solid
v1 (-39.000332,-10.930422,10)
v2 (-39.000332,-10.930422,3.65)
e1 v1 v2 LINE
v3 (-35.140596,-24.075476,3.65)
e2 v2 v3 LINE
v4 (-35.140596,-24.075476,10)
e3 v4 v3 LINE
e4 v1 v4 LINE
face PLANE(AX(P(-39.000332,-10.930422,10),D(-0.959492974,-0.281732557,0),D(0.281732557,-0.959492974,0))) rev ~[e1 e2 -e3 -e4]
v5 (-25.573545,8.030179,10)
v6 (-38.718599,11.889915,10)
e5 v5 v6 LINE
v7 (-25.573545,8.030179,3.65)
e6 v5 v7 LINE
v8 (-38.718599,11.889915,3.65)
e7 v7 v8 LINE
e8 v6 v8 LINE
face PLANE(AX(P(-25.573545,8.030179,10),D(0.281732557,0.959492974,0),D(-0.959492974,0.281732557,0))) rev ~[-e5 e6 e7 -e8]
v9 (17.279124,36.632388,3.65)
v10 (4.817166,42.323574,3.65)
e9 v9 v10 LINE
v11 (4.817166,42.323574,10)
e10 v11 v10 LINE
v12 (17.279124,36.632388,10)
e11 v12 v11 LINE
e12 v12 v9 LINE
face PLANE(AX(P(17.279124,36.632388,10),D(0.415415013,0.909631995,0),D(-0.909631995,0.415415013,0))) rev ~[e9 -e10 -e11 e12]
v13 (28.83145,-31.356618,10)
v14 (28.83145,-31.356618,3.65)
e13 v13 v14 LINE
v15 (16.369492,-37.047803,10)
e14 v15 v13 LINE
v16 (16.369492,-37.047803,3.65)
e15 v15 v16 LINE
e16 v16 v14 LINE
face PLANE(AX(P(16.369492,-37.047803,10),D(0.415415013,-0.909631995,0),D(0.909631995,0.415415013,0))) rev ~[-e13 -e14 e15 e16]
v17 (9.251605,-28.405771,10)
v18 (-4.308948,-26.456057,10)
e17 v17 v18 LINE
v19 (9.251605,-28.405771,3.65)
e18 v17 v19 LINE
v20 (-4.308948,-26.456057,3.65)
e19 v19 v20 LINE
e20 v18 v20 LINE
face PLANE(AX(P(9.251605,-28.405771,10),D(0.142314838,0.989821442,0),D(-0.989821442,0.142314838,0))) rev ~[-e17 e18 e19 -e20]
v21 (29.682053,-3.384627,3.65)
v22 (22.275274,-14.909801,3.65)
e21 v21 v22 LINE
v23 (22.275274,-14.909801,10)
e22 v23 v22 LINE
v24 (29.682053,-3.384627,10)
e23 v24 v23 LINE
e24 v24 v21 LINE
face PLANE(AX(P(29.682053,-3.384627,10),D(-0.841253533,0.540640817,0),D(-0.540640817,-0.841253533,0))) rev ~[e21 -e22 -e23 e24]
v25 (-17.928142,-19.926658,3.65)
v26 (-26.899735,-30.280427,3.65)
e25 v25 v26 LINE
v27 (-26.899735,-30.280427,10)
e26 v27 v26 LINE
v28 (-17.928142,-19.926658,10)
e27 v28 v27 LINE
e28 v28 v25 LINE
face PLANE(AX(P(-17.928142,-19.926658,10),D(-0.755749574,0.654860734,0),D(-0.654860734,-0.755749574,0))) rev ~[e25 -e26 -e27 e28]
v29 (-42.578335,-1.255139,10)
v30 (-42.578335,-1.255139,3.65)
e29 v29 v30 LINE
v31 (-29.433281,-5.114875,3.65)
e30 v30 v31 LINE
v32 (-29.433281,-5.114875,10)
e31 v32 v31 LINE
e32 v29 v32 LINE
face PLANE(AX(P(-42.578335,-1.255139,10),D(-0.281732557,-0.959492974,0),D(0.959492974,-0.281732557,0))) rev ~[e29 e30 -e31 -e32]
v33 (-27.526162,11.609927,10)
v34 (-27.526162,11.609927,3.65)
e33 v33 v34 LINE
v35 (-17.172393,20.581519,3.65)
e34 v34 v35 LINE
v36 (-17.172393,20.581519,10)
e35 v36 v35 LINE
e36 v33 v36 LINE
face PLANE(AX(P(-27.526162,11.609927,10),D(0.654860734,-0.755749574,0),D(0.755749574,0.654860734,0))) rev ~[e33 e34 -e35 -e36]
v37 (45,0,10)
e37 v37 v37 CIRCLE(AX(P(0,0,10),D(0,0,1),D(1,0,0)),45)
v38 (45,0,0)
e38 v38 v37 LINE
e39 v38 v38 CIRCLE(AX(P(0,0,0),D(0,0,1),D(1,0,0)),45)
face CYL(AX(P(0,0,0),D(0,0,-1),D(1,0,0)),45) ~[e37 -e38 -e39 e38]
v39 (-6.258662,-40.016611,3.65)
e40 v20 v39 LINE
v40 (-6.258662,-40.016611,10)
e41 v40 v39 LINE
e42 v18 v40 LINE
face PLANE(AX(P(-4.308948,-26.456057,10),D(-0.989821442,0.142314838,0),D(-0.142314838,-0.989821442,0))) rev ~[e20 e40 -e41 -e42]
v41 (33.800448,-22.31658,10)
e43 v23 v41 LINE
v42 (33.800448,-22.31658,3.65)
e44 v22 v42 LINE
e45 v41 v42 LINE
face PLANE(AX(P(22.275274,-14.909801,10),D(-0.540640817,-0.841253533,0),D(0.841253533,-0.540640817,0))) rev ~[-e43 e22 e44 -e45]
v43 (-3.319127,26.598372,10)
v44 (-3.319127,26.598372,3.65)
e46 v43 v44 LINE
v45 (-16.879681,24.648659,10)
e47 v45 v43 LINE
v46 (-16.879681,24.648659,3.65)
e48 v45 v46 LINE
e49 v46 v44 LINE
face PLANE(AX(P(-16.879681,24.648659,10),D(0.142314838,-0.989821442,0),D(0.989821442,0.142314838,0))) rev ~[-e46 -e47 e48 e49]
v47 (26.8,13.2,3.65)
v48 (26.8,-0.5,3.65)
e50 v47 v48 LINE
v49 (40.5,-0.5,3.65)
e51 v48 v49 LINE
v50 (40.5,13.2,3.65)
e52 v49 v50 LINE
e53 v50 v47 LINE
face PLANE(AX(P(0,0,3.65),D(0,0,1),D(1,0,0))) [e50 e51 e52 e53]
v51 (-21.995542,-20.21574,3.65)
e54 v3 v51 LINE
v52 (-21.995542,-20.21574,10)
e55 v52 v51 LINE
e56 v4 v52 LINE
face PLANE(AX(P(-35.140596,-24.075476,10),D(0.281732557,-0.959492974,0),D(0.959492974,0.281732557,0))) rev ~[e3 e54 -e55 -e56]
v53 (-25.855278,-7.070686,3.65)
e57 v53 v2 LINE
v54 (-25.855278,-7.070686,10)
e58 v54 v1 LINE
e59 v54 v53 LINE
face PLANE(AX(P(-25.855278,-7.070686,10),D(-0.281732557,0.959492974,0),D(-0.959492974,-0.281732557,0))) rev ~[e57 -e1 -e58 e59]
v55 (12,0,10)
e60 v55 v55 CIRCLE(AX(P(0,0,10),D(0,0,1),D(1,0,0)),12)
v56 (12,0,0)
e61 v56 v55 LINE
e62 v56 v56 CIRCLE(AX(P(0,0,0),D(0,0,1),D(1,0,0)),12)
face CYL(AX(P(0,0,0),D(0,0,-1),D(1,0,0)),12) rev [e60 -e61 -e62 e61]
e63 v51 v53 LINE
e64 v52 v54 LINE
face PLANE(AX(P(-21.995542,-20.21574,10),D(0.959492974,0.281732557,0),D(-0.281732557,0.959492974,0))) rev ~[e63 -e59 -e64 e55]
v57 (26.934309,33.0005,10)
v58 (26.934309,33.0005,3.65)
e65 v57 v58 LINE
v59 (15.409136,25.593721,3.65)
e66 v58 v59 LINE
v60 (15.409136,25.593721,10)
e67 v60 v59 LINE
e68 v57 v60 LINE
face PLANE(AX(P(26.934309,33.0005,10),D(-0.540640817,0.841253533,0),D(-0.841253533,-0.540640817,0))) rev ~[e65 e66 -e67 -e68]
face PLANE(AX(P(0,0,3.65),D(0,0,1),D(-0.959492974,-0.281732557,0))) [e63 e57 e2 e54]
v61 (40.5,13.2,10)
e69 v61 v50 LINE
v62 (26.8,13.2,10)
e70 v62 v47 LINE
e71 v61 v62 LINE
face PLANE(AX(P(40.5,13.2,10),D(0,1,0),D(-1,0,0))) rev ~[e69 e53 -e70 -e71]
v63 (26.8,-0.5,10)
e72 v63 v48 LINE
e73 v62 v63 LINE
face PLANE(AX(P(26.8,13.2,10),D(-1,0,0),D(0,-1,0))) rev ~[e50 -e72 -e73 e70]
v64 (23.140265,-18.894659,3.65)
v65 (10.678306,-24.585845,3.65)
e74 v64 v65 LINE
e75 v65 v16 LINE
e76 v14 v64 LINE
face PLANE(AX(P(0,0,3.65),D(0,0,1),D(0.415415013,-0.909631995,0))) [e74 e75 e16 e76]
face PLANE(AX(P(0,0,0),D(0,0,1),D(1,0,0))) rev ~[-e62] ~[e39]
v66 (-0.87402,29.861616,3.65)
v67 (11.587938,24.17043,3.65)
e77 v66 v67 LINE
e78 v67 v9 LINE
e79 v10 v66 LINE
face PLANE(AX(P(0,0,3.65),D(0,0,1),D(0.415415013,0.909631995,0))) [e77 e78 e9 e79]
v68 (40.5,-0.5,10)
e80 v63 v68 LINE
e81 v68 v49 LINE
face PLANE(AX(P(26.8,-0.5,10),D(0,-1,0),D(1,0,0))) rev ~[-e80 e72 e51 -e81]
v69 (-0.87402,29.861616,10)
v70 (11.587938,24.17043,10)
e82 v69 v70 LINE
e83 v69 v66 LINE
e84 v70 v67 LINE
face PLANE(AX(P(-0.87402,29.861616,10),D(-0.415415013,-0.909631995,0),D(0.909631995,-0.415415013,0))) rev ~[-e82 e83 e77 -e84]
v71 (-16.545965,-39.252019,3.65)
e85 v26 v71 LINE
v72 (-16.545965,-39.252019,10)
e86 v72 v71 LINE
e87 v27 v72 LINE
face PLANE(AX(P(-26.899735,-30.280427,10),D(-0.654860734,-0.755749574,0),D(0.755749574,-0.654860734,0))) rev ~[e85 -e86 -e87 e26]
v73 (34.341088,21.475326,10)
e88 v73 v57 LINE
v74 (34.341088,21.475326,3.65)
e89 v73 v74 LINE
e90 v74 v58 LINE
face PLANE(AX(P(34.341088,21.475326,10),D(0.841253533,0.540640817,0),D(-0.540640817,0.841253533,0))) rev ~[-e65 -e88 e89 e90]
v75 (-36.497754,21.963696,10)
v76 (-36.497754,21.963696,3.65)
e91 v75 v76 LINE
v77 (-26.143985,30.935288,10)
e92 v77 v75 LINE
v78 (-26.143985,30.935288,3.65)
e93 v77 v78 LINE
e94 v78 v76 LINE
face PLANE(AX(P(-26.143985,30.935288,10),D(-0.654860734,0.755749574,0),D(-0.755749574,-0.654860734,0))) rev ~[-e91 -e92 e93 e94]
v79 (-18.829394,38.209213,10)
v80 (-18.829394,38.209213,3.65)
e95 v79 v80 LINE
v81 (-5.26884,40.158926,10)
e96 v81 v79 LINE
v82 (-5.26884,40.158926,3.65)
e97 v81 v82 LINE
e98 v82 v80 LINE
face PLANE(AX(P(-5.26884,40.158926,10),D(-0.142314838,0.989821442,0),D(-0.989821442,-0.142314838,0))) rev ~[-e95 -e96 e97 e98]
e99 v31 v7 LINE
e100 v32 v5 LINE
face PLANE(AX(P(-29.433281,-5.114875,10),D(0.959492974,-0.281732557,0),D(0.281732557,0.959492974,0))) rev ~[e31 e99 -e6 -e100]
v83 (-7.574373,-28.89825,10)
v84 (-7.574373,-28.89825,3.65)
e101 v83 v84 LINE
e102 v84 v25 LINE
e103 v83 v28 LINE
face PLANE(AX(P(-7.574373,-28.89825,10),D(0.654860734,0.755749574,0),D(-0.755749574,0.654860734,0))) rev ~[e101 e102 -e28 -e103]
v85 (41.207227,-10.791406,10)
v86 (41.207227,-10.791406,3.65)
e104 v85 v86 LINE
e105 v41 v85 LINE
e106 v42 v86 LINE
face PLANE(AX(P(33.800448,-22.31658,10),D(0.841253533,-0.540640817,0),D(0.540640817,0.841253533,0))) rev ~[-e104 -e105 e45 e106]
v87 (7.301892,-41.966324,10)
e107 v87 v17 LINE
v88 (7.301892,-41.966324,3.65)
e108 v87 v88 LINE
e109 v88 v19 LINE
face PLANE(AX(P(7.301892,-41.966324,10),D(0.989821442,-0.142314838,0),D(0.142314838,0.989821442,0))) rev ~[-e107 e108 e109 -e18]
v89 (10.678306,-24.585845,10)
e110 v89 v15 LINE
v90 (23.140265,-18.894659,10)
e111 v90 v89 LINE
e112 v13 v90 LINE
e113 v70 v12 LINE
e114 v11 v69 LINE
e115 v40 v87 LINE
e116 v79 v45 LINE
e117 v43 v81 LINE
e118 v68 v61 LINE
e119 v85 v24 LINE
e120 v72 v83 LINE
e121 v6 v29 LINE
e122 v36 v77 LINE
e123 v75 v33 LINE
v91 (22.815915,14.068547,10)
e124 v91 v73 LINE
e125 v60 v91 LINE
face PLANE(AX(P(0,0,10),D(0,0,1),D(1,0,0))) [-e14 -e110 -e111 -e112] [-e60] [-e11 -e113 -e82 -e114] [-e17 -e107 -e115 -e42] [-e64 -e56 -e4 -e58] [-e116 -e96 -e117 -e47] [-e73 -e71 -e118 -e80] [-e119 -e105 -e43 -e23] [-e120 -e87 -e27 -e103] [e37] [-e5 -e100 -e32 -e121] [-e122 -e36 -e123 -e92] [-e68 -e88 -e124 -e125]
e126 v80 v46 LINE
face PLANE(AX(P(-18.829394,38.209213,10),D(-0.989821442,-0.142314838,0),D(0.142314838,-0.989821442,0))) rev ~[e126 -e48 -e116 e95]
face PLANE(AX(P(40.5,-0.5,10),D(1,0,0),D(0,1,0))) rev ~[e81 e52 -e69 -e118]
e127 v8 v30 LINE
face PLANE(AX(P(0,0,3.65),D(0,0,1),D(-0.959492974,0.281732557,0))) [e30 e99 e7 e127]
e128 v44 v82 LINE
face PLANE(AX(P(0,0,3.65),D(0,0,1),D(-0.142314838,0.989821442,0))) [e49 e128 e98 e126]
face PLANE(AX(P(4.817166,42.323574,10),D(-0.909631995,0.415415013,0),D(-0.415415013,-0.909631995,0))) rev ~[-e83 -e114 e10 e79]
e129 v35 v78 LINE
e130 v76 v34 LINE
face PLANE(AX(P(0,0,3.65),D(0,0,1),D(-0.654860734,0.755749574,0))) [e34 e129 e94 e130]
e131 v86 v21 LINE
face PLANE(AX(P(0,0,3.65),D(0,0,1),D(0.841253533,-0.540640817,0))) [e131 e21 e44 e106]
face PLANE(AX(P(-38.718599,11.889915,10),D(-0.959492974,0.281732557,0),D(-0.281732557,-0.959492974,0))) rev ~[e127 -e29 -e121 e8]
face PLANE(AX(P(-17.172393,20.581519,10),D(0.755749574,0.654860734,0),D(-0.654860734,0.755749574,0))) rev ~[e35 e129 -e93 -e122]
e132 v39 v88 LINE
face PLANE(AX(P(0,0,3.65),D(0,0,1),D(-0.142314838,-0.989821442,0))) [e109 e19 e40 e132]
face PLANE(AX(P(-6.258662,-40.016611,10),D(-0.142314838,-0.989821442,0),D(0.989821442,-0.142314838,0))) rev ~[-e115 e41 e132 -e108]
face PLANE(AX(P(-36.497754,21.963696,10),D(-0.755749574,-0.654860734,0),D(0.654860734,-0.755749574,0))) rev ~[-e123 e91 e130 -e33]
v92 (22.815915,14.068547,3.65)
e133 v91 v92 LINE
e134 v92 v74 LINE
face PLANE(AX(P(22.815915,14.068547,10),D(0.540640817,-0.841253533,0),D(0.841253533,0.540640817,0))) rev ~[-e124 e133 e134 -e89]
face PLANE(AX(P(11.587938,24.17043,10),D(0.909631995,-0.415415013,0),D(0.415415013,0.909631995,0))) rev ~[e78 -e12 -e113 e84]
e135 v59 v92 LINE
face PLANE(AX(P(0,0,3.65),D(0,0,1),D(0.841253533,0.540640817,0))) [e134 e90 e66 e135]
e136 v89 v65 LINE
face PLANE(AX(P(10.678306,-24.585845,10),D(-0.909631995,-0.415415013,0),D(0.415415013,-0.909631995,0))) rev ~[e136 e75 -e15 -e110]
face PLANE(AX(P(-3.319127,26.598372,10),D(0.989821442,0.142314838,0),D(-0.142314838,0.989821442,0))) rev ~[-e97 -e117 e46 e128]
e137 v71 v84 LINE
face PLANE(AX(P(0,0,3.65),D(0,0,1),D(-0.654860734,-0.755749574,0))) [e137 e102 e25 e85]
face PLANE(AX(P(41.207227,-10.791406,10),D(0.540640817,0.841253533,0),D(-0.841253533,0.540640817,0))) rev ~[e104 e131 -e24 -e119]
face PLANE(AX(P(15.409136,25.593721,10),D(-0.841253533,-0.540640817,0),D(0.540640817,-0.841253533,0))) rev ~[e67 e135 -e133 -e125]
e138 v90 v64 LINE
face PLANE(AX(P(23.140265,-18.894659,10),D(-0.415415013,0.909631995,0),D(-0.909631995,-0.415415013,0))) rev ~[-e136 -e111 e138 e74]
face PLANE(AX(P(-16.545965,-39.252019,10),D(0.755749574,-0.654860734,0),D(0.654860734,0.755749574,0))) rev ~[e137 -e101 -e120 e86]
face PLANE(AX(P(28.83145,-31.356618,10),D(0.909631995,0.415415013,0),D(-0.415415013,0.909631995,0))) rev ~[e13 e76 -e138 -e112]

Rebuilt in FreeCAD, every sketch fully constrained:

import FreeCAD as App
import Part
import Sketcher

V = App.Vector


def add_polygon(sketch, points):
    """Adds a closed chain of lines whose ends are joined by coincident constraints."""
    first, n = sketch.GeometryCount, len(points)
    for a, b in zip(points, points[1:] + points[:1]):
        sketch.addGeometry(Part.LineSegment(App.Vector(*a, 0), App.Vector(*b, 0)), False)
    for i in range(n):
        sketch.addConstraint(Sketcher.Constraint("Coincident", first + i, 2, first + (i + 1) % n, 1))

doc = App.newDocument("Part")
params = doc.addObject("Spreadsheet::Sheet", "Params")
for row, (alias, value) in enumerate([
    ("sketch1_diameter", "90 mm"),
    ("sketch1_diameter2", "24 mm"),
    ("pad1_length", "10 mm"),
    ("sketch2_width", "13.7 mm"),
    ("pocket1_length", "6.35 mm"),
], start=1):
    params.set(f"A{row}", alias)
    params.set(f"B{row}", "=" + value)
    params.setAlias(f"B{row}", alias)

body = doc.addObject("PartDesign::Body", "Body")

sketch1 = doc.addObject("Sketcher::SketchObject", "Sketch")
body.addObject(sketch1)
sketch1.AttachmentSupport = (doc.XY_Plane, [""])
sketch1.MapMode = "FlatFace"
sketch1.addGeometry([
    Part.Circle(V(0, 0, 0), V(0, 0, 1), 45),
    Part.Circle(V(0, 0, 0), V(0, 0, 1), 12),
], False)
sketch1.addConstraint([
    Sketcher.Constraint("Coincident", 0, 3, -1, 1),
    Sketcher.Constraint("Coincident", 1, 3, -1, 1),
    Sketcher.Constraint("Diameter", 0, 90.0),
    Sketcher.Constraint("Diameter", 1, 24.0),
])
sketch1.setExpression("Constraints[2]", "Params.sketch1_diameter")
sketch1.setExpression("Constraints[3]", "Params.sketch1_diameter2")
pad1 = doc.addObject("PartDesign::Pad", "Pad")
body.addObject(pad1)
pad1.Profile = sketch1
pad1.setExpression("Length", "Params.pad1_length")

sketch2 = doc.addObject("Sketcher::SketchObject", "Sketch001")
body.addObject(sketch2)
sketch2.AttachmentSupport = (doc.XY_Plane, [""])
sketch2.MapMode = "FlatFace"
sketch2.AttachmentOffset = App.Placement(V(0, 0, 10), App.Rotation())
add_polygon(sketch2, [(40, 0), (40, 13), (27, 13), (27, 0)])
sketch2.addConstraint([
    Sketcher.Constraint("Vertical", 0),
    Sketcher.Constraint("Horizontal", 1),
    Sketcher.Constraint("Vertical", 2),
    Sketcher.Constraint("Horizontal", 3),
    Sketcher.Constraint("Equal", 3, 0),
    Sketcher.Constraint("DistanceY", 2, 2, -1, 1, 0.5),
    Sketcher.Constraint("DistanceX", 1, 2, 1, 1, 13.7),
    Sketcher.Constraint("DistanceX", -1, 1, 0, 2, 40.5),
])
sketch2.setExpression("Constraints[10]", "Params.sketch2_width")
pocket1 = doc.addObject("PartDesign::Pocket", "Pocket")
body.addObject(pocket1)
pocket1.Profile = sketch2
pocket1.setExpression("Length", "Params.pocket1_length")
doc.recompute()

polarpattern = doc.addObject("PartDesign::PolarPattern", "PolarPattern")
body.addObject(polarpattern)
polarpattern.Originals = [pocket1]
polarpattern.Axis = (doc.Z_Axis, [""])
polarpattern.Angle = 360
polarpattern.Occurrences = 11
body.Tip = polarpattern

doc.recompute()
